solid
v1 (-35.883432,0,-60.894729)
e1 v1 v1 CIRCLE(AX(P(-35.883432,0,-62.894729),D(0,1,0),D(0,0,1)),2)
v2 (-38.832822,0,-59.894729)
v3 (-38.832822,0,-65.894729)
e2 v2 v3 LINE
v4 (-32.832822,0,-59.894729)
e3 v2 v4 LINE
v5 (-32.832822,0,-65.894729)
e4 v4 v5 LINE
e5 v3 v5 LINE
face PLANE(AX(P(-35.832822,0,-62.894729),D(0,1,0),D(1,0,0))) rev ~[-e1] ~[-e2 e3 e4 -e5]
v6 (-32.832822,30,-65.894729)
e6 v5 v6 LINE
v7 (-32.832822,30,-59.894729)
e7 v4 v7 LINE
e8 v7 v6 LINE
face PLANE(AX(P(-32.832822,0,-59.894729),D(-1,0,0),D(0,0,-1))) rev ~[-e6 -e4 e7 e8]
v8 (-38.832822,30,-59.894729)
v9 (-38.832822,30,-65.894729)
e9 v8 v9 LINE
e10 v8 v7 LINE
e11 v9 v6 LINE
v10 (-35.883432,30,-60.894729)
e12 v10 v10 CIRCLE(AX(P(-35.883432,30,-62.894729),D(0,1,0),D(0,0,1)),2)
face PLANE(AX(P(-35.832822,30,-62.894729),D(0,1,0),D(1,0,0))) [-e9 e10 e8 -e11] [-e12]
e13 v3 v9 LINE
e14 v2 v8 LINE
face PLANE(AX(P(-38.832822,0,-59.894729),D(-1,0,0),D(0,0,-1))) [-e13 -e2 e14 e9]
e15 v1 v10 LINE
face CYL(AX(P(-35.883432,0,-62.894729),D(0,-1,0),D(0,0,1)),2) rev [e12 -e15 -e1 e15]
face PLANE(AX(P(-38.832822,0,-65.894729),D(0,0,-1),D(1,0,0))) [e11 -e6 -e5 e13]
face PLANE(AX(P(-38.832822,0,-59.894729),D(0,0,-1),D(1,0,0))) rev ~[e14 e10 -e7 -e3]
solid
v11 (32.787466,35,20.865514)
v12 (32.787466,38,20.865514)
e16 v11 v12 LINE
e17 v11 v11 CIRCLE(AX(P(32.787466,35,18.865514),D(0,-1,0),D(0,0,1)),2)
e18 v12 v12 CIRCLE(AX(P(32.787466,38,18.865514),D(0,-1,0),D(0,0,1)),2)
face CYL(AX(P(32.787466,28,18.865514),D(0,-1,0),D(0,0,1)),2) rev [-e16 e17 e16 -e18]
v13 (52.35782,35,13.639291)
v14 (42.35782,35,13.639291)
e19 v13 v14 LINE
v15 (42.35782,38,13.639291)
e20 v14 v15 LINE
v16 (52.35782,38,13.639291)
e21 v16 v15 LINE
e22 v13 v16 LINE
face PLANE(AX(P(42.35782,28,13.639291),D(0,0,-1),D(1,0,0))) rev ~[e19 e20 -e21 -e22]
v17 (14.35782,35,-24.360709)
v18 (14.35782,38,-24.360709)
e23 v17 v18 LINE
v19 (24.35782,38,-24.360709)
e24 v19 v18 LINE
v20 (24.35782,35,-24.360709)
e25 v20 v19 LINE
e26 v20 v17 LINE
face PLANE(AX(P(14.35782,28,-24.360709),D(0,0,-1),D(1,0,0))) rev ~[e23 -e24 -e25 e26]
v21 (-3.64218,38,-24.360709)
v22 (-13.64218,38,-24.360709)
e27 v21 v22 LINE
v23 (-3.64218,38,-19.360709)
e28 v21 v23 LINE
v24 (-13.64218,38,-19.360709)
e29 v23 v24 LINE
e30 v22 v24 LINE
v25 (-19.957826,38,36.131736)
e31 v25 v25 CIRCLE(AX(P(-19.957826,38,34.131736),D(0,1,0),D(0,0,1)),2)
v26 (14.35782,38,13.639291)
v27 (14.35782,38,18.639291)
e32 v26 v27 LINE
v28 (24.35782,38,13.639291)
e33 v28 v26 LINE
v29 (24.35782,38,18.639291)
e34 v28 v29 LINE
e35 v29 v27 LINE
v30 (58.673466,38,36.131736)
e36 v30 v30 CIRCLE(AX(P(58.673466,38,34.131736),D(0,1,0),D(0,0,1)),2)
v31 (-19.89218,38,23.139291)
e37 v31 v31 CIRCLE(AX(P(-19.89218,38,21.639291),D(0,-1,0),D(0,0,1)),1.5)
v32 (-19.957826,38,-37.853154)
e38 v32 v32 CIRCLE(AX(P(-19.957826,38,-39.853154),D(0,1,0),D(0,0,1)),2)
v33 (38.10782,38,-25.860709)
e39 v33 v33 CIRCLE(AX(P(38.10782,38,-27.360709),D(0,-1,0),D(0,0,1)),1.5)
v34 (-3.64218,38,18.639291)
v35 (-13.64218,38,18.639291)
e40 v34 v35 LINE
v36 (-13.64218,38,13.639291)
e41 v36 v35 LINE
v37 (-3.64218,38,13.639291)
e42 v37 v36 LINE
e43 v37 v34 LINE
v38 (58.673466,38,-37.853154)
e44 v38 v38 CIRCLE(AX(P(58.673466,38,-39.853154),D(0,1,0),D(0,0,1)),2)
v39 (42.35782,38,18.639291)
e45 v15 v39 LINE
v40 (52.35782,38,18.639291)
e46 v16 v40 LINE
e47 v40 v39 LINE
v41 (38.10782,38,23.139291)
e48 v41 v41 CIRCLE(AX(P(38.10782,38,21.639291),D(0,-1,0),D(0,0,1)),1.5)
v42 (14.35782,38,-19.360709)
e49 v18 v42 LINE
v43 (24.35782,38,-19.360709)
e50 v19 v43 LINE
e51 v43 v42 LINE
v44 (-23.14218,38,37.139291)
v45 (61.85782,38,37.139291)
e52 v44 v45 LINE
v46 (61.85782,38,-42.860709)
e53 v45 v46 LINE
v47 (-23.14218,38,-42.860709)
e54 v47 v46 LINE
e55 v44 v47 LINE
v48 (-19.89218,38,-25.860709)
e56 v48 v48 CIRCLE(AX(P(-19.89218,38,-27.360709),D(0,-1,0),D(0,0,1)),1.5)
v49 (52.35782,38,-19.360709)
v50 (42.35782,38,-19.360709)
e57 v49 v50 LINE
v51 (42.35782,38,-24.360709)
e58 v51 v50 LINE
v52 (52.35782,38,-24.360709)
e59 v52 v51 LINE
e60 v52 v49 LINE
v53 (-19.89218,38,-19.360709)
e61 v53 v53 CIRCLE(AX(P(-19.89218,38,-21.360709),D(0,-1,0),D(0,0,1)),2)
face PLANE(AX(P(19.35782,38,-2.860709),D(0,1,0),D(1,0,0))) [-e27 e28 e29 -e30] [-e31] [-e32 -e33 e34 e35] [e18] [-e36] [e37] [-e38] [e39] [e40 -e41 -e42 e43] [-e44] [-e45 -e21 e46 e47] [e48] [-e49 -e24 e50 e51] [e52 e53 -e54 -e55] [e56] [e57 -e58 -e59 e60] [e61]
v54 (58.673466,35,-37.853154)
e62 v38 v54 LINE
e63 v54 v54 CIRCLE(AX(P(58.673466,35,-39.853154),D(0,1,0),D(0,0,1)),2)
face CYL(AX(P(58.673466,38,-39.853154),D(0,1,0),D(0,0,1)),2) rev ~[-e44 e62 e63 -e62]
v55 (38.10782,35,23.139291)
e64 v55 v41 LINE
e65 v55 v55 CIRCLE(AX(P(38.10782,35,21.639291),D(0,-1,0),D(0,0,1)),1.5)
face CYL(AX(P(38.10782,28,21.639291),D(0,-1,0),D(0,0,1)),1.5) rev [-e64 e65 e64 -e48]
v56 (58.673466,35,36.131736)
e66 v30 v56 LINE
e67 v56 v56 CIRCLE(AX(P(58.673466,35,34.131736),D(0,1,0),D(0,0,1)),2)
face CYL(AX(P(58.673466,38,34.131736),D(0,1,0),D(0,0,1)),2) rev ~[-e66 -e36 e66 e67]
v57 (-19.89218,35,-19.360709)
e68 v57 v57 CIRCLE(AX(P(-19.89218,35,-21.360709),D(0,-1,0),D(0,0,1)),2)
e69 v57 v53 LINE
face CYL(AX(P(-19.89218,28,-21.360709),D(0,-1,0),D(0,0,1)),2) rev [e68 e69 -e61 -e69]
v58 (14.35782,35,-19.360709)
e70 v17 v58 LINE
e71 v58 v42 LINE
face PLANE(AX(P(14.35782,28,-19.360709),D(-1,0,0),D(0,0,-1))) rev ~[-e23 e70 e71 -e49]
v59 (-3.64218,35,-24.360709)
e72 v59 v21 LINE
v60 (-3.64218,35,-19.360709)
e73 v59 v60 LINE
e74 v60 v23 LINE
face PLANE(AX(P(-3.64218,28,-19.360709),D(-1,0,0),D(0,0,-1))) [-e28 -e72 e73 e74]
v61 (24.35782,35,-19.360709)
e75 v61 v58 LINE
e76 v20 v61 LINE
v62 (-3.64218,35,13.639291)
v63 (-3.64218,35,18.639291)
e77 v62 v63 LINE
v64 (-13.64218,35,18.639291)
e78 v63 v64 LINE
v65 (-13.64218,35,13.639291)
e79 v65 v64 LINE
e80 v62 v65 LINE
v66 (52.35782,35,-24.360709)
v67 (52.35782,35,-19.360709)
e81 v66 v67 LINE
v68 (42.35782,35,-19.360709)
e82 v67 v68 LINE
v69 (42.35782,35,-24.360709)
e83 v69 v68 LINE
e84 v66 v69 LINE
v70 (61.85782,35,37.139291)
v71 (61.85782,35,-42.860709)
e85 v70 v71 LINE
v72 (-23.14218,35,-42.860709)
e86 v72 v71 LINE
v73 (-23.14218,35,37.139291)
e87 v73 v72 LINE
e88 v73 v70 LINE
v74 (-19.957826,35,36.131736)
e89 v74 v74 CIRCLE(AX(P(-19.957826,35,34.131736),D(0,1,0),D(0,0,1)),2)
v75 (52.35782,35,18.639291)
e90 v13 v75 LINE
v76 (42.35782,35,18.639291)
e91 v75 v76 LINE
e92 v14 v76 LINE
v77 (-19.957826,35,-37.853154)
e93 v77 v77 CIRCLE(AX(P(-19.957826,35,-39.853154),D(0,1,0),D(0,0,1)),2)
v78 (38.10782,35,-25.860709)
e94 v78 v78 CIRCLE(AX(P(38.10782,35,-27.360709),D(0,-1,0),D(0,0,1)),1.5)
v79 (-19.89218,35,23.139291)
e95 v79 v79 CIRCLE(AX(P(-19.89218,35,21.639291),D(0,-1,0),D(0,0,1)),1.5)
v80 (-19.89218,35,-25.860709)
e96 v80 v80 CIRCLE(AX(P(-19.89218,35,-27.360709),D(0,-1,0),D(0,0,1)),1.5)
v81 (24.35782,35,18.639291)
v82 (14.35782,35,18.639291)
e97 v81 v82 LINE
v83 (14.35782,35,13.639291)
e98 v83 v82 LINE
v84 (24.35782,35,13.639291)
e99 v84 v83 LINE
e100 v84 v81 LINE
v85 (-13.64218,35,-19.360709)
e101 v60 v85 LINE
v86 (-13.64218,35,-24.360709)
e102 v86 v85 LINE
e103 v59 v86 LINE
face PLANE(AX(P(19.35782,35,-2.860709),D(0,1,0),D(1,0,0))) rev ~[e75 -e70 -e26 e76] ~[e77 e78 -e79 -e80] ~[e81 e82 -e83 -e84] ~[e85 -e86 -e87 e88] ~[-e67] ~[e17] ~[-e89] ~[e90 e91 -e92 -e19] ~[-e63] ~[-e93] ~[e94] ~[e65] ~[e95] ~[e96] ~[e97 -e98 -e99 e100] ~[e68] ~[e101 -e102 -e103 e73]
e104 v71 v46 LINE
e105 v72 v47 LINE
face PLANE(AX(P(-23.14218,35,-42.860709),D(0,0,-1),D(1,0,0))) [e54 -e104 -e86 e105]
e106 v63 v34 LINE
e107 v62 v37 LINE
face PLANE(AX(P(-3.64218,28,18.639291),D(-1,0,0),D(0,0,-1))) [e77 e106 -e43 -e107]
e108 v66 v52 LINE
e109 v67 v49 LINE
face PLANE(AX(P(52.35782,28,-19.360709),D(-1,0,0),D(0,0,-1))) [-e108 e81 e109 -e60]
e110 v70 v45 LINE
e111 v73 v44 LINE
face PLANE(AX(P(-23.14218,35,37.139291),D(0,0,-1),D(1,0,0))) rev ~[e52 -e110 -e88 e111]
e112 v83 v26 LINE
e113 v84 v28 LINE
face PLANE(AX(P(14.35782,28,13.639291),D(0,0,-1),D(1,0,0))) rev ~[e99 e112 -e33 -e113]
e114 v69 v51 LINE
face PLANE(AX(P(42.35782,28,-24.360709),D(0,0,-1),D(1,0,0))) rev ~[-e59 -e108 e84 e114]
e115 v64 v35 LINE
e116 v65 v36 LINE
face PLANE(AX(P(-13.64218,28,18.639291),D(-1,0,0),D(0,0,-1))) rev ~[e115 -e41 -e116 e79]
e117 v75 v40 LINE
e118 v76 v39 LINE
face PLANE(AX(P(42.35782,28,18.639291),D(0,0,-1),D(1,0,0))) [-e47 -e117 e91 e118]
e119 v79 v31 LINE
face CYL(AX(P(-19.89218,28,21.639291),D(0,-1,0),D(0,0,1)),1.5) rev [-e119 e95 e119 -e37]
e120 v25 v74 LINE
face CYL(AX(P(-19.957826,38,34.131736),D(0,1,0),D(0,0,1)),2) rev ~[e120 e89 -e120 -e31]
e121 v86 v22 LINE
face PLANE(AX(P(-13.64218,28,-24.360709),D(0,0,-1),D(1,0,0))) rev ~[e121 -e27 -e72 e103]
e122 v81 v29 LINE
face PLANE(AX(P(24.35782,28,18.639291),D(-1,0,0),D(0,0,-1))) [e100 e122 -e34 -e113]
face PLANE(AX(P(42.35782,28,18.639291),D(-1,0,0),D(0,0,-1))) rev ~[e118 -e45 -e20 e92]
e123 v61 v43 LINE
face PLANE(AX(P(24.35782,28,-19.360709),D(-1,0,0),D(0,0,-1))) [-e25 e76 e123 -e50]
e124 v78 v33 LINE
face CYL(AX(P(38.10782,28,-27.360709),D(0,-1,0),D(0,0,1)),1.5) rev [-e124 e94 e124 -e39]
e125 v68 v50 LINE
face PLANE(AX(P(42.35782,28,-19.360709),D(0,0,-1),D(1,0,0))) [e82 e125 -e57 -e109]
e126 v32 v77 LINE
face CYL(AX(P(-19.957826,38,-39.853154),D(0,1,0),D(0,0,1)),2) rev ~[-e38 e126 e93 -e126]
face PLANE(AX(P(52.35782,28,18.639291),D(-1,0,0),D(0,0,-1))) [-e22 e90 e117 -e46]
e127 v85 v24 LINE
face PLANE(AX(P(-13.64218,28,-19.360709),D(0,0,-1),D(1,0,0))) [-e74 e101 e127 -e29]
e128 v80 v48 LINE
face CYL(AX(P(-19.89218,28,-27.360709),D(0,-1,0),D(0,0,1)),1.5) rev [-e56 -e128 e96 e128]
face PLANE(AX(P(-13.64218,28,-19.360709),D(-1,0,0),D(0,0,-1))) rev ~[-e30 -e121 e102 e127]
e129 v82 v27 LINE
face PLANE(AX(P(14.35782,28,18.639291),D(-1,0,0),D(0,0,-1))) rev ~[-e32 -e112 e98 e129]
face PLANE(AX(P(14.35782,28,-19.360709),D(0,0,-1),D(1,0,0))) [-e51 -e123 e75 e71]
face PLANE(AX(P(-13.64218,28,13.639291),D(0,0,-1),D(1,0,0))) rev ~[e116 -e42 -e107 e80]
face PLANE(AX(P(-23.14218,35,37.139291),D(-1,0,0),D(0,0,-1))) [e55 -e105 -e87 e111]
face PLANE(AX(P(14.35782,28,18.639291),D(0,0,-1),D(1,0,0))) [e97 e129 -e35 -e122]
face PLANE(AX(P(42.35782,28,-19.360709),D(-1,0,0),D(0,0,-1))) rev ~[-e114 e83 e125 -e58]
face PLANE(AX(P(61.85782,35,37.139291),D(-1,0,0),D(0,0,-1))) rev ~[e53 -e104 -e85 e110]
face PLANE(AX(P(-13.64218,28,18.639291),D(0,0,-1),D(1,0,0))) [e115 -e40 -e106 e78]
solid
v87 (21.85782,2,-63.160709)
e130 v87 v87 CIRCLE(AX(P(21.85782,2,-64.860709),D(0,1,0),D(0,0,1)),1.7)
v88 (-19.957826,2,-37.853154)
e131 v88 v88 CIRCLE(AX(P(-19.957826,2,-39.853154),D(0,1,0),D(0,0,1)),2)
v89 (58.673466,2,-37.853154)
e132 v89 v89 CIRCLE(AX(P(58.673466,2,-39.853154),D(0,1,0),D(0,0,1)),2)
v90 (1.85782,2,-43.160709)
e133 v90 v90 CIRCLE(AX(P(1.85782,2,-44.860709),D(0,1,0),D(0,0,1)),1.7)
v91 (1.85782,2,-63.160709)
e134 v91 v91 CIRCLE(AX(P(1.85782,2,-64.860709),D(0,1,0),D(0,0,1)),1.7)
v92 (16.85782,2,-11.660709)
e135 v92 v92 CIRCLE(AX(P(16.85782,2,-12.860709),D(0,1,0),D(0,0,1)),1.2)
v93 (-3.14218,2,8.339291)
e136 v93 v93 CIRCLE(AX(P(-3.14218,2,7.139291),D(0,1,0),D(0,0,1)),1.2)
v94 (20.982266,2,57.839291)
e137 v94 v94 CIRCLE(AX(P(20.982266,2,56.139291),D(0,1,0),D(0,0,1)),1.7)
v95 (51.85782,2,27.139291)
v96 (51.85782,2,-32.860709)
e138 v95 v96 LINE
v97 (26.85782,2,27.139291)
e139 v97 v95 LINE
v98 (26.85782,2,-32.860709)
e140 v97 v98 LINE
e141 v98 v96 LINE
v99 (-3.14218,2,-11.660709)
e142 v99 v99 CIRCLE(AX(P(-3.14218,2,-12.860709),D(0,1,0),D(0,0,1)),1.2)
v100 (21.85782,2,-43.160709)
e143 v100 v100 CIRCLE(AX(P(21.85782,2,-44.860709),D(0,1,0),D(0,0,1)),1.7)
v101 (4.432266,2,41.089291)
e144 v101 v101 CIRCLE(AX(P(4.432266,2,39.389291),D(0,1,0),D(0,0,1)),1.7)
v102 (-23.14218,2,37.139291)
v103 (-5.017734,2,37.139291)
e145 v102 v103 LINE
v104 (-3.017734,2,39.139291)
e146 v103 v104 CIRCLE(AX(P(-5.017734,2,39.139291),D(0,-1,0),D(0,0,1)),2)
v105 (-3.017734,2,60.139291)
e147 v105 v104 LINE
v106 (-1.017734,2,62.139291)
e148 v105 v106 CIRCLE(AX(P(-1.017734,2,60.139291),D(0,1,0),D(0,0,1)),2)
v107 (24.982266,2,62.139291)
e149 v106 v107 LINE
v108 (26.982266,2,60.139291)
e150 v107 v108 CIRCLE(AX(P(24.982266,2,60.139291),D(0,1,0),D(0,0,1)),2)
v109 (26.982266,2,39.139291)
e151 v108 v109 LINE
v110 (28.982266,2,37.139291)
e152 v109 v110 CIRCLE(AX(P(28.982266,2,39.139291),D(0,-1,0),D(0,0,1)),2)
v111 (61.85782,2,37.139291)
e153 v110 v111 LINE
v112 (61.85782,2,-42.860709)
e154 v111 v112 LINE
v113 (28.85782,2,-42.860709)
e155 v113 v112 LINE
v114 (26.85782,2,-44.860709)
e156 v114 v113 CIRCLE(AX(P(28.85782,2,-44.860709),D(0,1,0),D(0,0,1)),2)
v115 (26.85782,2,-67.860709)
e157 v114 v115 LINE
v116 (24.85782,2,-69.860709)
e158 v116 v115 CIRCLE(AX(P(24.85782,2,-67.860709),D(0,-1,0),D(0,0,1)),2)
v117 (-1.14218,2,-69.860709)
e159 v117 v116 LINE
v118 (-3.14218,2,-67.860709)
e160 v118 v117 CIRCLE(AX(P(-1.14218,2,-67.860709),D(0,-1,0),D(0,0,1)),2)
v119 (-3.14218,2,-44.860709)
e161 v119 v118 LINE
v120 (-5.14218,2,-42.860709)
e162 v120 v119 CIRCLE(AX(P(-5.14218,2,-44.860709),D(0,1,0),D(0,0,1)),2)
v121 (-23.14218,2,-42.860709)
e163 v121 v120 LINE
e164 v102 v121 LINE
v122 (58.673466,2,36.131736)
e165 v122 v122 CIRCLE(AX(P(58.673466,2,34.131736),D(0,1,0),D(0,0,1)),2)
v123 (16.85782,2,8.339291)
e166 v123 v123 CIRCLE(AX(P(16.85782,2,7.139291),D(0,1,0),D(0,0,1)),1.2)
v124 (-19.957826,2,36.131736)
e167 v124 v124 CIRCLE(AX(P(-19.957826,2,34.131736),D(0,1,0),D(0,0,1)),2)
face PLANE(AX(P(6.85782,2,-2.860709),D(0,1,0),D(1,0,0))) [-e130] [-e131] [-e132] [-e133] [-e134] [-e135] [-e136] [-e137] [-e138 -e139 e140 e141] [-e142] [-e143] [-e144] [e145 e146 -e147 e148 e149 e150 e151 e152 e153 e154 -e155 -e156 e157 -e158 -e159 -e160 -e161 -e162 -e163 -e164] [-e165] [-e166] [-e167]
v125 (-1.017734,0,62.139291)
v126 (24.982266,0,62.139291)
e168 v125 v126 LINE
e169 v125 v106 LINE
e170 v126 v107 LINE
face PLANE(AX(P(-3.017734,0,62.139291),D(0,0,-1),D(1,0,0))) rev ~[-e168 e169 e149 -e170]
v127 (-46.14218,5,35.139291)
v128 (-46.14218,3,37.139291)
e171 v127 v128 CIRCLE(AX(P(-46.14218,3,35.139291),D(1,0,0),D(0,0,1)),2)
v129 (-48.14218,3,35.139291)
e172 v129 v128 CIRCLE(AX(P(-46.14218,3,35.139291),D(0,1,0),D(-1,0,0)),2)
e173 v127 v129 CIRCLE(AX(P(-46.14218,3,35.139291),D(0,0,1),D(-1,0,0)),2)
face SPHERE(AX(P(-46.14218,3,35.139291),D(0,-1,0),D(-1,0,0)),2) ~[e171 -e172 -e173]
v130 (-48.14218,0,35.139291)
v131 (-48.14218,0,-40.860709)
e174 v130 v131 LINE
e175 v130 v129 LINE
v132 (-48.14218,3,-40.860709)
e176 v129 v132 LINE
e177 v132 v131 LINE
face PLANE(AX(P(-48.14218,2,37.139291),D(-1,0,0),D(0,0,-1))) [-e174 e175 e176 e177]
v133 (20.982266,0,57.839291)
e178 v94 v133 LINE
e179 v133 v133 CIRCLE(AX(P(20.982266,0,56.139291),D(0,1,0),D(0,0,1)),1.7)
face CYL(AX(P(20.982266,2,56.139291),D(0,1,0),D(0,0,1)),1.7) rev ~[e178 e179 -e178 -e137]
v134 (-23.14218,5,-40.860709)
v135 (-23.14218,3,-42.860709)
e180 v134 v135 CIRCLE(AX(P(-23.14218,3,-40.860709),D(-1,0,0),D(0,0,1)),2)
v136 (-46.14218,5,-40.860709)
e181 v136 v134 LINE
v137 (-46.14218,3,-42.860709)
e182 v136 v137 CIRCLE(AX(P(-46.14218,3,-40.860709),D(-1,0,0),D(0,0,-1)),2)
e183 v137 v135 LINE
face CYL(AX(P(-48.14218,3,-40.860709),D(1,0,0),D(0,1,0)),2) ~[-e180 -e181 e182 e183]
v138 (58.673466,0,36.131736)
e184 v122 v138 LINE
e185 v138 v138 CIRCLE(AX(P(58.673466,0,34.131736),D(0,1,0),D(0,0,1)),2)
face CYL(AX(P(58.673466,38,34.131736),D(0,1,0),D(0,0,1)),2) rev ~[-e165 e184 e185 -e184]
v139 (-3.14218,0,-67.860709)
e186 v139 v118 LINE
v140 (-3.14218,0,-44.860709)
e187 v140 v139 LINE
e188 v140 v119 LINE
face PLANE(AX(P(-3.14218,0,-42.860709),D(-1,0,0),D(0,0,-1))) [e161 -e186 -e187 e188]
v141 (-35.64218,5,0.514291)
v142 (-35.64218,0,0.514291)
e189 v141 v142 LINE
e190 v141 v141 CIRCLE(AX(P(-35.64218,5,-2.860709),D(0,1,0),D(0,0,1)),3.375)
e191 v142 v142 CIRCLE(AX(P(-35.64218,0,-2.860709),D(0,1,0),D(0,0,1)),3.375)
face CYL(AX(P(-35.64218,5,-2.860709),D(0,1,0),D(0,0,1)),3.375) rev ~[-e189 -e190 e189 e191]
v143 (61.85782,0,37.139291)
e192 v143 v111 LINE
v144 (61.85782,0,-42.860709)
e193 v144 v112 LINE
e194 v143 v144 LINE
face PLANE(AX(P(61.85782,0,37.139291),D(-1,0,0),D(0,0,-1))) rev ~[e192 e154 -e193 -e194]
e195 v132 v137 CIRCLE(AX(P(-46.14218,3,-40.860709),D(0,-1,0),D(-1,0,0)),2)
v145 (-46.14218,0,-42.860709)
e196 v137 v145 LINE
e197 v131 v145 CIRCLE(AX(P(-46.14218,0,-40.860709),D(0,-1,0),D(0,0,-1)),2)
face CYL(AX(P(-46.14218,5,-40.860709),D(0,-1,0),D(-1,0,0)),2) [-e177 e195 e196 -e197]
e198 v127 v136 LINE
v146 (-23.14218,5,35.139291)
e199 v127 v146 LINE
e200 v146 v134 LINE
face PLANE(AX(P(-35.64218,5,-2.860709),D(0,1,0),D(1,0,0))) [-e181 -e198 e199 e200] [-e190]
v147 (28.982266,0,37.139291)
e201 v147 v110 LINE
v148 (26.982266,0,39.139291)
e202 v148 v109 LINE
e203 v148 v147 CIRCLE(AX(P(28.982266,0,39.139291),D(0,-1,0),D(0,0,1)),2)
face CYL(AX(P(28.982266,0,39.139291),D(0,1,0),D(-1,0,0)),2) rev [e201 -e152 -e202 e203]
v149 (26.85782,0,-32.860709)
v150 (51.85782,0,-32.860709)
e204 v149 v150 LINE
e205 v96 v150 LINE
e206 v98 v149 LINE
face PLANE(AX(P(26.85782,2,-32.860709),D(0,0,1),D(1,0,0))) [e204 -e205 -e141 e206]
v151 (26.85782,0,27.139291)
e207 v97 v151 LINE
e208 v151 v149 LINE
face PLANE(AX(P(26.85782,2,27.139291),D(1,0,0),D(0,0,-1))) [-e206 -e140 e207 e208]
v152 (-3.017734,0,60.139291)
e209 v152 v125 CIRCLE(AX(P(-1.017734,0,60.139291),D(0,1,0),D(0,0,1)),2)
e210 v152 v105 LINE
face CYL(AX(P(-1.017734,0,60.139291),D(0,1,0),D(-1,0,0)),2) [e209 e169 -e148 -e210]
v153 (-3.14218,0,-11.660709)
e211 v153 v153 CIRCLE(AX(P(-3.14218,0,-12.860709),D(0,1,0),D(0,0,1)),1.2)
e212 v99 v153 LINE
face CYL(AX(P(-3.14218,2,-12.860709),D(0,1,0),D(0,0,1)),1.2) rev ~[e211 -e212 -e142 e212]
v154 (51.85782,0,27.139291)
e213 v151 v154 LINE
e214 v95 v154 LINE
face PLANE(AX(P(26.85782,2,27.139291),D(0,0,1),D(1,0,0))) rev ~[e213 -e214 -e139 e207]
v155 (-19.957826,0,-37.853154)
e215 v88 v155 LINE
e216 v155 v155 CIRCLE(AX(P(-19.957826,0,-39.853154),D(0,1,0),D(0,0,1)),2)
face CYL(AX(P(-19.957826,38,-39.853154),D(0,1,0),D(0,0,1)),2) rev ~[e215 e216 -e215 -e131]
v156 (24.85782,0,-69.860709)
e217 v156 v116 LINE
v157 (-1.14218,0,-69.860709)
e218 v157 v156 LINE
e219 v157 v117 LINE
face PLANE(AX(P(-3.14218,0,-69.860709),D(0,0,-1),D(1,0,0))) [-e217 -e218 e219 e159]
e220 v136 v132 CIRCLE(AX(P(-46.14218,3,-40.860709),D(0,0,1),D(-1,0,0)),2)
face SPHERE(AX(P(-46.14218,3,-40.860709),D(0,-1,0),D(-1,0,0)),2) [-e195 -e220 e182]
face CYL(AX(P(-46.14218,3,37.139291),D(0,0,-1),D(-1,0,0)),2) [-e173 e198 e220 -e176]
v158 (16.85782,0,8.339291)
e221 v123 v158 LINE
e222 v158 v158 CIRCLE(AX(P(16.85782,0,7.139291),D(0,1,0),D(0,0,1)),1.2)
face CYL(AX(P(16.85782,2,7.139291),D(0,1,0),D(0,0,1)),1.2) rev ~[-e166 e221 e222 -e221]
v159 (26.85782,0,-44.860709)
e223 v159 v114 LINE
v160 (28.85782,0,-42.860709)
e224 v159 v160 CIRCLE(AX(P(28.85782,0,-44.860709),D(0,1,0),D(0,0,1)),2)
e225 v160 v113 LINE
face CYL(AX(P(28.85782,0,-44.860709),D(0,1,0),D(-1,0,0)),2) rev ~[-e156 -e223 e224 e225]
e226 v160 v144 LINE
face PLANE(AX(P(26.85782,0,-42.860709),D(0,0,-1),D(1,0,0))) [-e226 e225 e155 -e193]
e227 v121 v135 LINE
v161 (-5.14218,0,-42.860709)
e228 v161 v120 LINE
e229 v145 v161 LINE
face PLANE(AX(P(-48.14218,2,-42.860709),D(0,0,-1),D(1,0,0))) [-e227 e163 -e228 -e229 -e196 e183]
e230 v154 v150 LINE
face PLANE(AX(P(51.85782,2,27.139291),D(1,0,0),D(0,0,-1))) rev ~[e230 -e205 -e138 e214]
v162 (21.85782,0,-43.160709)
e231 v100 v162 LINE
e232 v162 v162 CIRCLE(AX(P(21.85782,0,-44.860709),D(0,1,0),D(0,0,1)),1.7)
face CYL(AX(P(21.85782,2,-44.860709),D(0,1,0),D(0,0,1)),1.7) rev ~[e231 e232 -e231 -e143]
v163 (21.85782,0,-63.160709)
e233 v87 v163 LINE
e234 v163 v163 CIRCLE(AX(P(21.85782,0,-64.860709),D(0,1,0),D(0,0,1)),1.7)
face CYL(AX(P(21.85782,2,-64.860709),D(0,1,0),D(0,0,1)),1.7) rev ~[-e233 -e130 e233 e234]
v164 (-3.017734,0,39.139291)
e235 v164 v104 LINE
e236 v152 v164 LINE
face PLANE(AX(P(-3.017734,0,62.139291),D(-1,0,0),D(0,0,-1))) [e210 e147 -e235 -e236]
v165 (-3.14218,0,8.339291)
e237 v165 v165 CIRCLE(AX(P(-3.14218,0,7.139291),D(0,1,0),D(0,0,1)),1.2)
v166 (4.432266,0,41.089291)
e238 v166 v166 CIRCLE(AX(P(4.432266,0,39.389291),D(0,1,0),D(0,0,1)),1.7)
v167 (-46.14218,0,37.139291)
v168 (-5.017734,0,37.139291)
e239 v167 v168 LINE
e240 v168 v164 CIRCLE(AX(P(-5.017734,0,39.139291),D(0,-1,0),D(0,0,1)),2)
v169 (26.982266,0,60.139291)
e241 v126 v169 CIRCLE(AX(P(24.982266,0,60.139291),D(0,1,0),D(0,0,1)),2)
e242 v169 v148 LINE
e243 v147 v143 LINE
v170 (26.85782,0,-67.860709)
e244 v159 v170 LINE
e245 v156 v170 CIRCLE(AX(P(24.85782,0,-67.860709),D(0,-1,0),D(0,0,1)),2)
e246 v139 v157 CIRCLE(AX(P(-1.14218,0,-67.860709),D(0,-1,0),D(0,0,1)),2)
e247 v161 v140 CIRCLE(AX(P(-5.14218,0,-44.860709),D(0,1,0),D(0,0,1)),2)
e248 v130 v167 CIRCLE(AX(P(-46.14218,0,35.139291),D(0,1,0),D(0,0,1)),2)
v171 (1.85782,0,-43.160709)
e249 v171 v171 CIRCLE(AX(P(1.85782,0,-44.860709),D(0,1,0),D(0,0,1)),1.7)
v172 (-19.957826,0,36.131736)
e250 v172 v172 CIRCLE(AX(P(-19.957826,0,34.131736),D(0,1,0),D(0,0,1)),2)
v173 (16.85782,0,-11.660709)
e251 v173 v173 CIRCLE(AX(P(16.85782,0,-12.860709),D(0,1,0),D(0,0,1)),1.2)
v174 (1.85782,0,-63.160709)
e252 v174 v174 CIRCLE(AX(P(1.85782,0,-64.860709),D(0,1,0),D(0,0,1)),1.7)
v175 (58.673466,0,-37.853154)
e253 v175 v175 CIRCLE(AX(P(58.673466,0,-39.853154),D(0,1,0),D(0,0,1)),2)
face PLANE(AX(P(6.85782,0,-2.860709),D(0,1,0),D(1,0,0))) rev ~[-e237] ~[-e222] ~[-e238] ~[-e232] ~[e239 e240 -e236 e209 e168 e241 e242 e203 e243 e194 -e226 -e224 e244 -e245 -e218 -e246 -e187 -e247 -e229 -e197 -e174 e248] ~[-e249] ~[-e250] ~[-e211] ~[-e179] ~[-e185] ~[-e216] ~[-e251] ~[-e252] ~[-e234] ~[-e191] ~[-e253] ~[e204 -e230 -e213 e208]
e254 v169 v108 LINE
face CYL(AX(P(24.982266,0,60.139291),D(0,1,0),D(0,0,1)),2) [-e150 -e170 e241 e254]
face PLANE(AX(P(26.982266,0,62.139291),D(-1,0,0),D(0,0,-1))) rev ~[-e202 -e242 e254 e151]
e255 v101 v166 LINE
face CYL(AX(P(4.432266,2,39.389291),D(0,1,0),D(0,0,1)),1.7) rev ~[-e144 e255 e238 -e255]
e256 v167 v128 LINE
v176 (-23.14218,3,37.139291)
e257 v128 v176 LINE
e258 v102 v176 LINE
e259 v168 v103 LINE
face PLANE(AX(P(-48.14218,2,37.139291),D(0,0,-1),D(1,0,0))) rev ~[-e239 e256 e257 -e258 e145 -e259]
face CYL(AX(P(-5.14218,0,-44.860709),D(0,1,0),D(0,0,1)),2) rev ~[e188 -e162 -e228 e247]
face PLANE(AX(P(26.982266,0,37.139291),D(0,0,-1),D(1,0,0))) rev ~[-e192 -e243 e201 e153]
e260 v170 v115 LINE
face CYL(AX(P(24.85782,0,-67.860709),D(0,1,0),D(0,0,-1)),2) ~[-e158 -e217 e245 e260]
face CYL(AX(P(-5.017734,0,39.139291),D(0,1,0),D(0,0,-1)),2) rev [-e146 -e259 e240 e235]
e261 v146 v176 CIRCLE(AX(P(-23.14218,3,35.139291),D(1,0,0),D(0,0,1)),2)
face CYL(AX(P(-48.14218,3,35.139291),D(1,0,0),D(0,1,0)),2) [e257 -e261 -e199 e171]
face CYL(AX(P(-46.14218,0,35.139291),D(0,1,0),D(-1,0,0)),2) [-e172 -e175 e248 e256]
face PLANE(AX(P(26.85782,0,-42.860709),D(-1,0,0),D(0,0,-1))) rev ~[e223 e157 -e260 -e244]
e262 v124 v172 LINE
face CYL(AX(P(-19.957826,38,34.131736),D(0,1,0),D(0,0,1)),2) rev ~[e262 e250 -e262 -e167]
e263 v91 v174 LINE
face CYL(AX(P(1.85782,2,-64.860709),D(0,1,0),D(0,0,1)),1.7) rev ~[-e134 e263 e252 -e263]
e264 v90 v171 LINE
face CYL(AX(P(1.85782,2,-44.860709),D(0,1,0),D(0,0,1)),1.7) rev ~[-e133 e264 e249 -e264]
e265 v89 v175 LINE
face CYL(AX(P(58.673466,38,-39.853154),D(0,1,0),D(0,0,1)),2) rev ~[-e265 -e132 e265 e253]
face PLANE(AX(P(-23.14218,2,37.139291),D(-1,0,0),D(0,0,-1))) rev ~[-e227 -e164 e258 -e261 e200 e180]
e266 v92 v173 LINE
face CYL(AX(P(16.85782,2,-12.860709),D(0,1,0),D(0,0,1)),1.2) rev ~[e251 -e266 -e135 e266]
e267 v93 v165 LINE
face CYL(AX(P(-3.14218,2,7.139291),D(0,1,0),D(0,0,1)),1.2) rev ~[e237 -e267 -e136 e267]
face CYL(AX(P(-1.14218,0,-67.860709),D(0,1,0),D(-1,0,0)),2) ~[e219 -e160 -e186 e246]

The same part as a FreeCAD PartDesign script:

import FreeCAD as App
import Part
import Sketcher
from FreeCAD import Vector
Q = App.Units.Quantity


def edges_at(feature, points):
    """Names of the edges that pass closest to the given points."""
    edges = feature.Shape.Edges
    near = lambda p: min(range(len(edges)), key=lambda i: edges[i].distToShape(Part.Vertex(*p))[0])
    return sorted({f"Edge{near(p) + 1}" for p in points})

doc = App.newDocument("Part")
body = doc.addObject("PartDesign::Body", "Body")

# Sketch on XZ plane
sketch1 = doc.addObject("Sketcher::SketchObject", "Sketch")
body.addObject(sketch1)
sketch1.AttachmentSupport = (doc.XZ_Plane, [""])
sketch1.MapMode = "FlatFace"
sketch1.addGeometry([
    Part.LineSegment(Vector(-48.14218, -42.860709, 0), Vector(-48.14218, 37.139291, 0)),  # 0
    Part.LineSegment(Vector(-48.14218, 37.139291, 0), Vector(-3.017734, 37.139291, 0)),  # 1
    Part.LineSegment(Vector(-3.017734, 37.139291, 0), Vector(-3.017734, 62.139291, 0)),  # 2
    Part.LineSegment(Vector(-3.017734, 62.139291, 0), Vector(26.982266, 62.139291, 0)),  # 3
    Part.LineSegment(Vector(26.982266, 62.139291, 0), Vector(26.982266, 37.139291, 0)),  # 4
    Part.LineSegment(Vector(26.982266, 37.139291, 0), Vector(61.85782, 37.139291, 0)),  # 5
    Part.LineSegment(Vector(61.85782, 37.139291, 0), Vector(61.85782, -42.860709, 0)),  # 6
    Part.LineSegment(Vector(61.85782, -42.860709, 0), Vector(26.85782, -42.860709, 0)),  # 7
    Part.LineSegment(Vector(26.85782, -42.860709, 0), Vector(26.85782, -69.860709, 0)),  # 8
    Part.LineSegment(Vector(26.85782, -69.860709, 0), Vector(-3.14218, -69.860709, 0)),  # 9
    Part.LineSegment(Vector(-3.14218, -69.860709, 0), Vector(-3.14218, -42.860709, 0)),  # 10
    Part.LineSegment(Vector(-3.14218, -42.860709, 0), Vector(-48.14218, -42.860709, 0)),  # 11
], False)
sketch1.addConstraint([
    Sketcher.Constraint("Coincident", 0, 2, 1, 1),
    Sketcher.Constraint("Coincident", 1, 2, 2, 1),
    Sketcher.Constraint("Coincident", 2, 2, 3, 1),
    Sketcher.Constraint("Coincident", 3, 2, 4, 1),
    Sketcher.Constraint("Coincident", 4, 2, 5, 1),
    Sketcher.Constraint("Coincident", 5, 2, 6, 1),
    Sketcher.Constraint("Coincident", 6, 2, 7, 1),
    Sketcher.Constraint("Coincident", 7, 2, 8, 1),
    Sketcher.Constraint("Coincident", 8, 2, 9, 1),
    Sketcher.Constraint("Coincident", 9, 2, 10, 1),
    Sketcher.Constraint("Coincident", 10, 2, 11, 1),
    Sketcher.Constraint("Coincident", 11, 2, 0, 1),
    Sketcher.Constraint("Vertical", 0),
    Sketcher.Constraint("Horizontal", 1),
    Sketcher.Constraint("Vertical", 2),
    Sketcher.Constraint("Horizontal", 3),
    Sketcher.Constraint("Vertical", 4),
    Sketcher.Constraint("Horizontal", 5),
    Sketcher.Constraint("Vertical", 6),
    Sketcher.Constraint("Horizontal", 7),
    Sketcher.Constraint("Vertical", 8),
    Sketcher.Constraint("Horizontal", 9),
    Sketcher.Constraint("Vertical", 10),
    Sketcher.Constraint("Horizontal", 11),
    Sketcher.Constraint("Horizontal", 1, 2, 4, 2),
    Sketcher.Constraint("Horizontal", 7, 2, 10, 2),
    Sketcher.Constraint("Equal", 3, 9),
    Sketcher.Constraint("DistanceX", 3, 1, 3, 2, Q("30 mm")),
    Sketcher.Constraint("DistanceX", 7, 2, 7, 1, Q("35 mm")),
    Sketcher.Constraint("DistanceX", 11, 2, 11, 1, Q("45 mm")),
    Sketcher.Constraint("DistanceY", 0, 1, 0, 2, Q("80 mm")),
    Sketcher.Constraint("DistanceY", 2, 1, 2, 2, Q("25 mm")),
    Sketcher.Constraint("DistanceY", 8, 2, 8, 1, Q("27 mm")),
    Sketcher.Constraint("DistanceX", 1, 1, 1, 2, Q("45.124446 mm")),
    Sketcher.Constraint("DistanceX", 0, 2, -1, 1, Q("48.14218 mm")),
    Sketcher.Constraint("DistanceY", -1, 1, 0, 2, Q("37.139291 mm")),
])
pad1 = doc.addObject("PartDesign::Pad", "Pad")
body.addObject(pad1)
pad1.Profile = sketch1
pad1.Length = 2
pad1.Reversed = True

# Sketch on XZ plane
sketch2 = doc.addObject("Sketcher::SketchObject", "Sketch001")
body.addObject(sketch2)
sketch2.AttachmentSupport = (doc.XZ_Plane, [""])
sketch2.MapMode = "FlatFace"
sketch2.AttachmentOffset = App.Placement(Vector(0, 0, -2), App.Rotation())
sketch2.addGeometry([
    Part.LineSegment(Vector(-48.14218, -42.860709, 0), Vector(-48.14218, 37.139291, 0)),
    Part.LineSegment(Vector(-48.14218, 37.139291, 0), Vector(-23.14218, 37.139291, 0)),
    Part.LineSegment(Vector(-23.14218, 37.139291, 0), Vector(-23.14218, -42.860709, 0)),
    Part.LineSegment(Vector(-23.14218, -42.860709, 0), Vector(-48.14218, -42.860709, 0)),
], False)
sketch2.addConstraint([
    Sketcher.Constraint("Coincident", 0, 2, 1, 1),
    Sketcher.Constraint("Coincident", 1, 2, 2, 1),
    Sketcher.Constraint("Coincident", 2, 2, 3, 1),
    Sketcher.Constraint("Coincident", 3, 2, 0, 1),
    Sketcher.Constraint("Vertical", 0),
    Sketcher.Constraint("Horizontal", 1),
    Sketcher.Constraint("Vertical", 2),
    Sketcher.Constraint("Horizontal", 3),
    Sketcher.Constraint("DistanceX", 1, 1, 1, 2, Q("25 mm")),
    Sketcher.Constraint("DistanceY", 0, 1, 0, 2, Q("80 mm")),
    Sketcher.Constraint("DistanceX", 0, 2, -1, 1, Q("48.14218 mm")),
    Sketcher.Constraint("DistanceY", -1, 1, 0, 2, Q("37.139291 mm")),
])
pad2 = doc.addObject("PartDesign::Pad", "Pad001")
body.addObject(pad2)
pad2.Profile = sketch2
pad2.Length = 3
pad2.Reversed = True

# Sketch on XZ plane
sketch3 = doc.addObject("Sketcher::SketchObject", "Sketch002")
body.addObject(sketch3)
sketch3.AttachmentSupport = (doc.XZ_Plane, [""])
sketch3.MapMode = "FlatFace"
sketch3.AttachmentOffset = App.Placement(Vector(0, 0, -5), App.Rotation())
sketch3.addGeometry(Part.Circle(Vector(-35.64218, -2.860709, 0), Vector(0, 0, 1), 3.375), False)
sketch3.addConstraint([
    Sketcher.Constraint("Diameter", 0, Q("6.75 mm")),
    Sketcher.Constraint("DistanceX", 0, 3, -1, 1, Q("35.64218 mm")),
    Sketcher.Constraint("DistanceY", 0, 3, -1, 1, Q("2.860709 mm")),
])
pocket1 = doc.addObject("PartDesign::Pocket", "Pocket")
body.addObject(pocket1)
pocket1.Profile = sketch3
pocket1.Length = 6
pocket1.Reversed = True

# Sketch on XZ plane
sketch4 = doc.addObject("Sketcher::SketchObject", "Sketch003")
body.addObject(sketch4)
sketch4.AttachmentSupport = (doc.XZ_Plane, [""])
sketch4.MapMode = "FlatFace"
sketch4.AttachmentOffset = App.Placement(Vector(0, 0, -2), App.Rotation())
sketch4.addGeometry([
    Part.Circle(Vector(-3.14218, -12.860709, 0), Vector(0, 0, 1), 1.2),
    Part.Circle(Vector(16.85782, -12.860709, 0), Vector(0, 0, 1), 1.2),
    Part.Circle(Vector(16.85782, 7.139291, 0), Vector(0, 0, 1), 1.2),
    Part.Circle(Vector(-3.14218, 7.139291, 0), Vector(0, 0, 1), 1.2),
], False)
sketch4.addConstraint([
    Sketcher.Constraint("Equal", 0, 1),
    Sketcher.Constraint("Equal", 1, 2),
    Sketcher.Constraint("Equal", 2, 3),
    Sketcher.Constraint("Horizontal", 0, 3, 1, 3),
    Sketcher.Constraint("Horizontal", 2, 3, 3, 3),
    Sketcher.Constraint("Vertical", 1, 3, 2, 3),
    Sketcher.Constraint("Vertical", 0, 3, 3, 3),
    Sketcher.Constraint("Diameter", 0, Q("2.4 mm")),
    Sketcher.Constraint("DistanceX", 0, 3, 1, 3, Q("20 mm")),
    Sketcher.Constraint("DistanceY", 1, 3, 2, 3, Q("20 mm")),
    Sketcher.Constraint("DistanceX", 0, 3, -1, 1, Q("3.14218 mm")),
    Sketcher.Constraint("DistanceY", 0, 3, -1, 1, Q("12.860709 mm")),
])
pocket2 = doc.addObject("PartDesign::Pocket", "Pocket001")
body.addObject(pocket2)
pocket2.Profile = sketch4
pocket2.Length = 6
pocket2.Reversed = True

# Sketch on XZ plane
sketch5 = doc.addObject("Sketcher::SketchObject", "Sketch004")
body.addObject(sketch5)
sketch5.AttachmentSupport = (doc.XZ_Plane, [""])
sketch5.MapMode = "FlatFace"
sketch5.AttachmentOffset = App.Placement(Vector(0, 0, -2), App.Rotation())
sketch5.addGeometry([
    Part.Circle(Vector(1.85782, -64.860709, 0), Vector(0, 0, 1), 1.7),  # 0
    Part.Circle(Vector(21.85782, -64.860709, 0), Vector(0, 0, 1), 1.7),  # 1
    Part.Circle(Vector(21.85782, -44.860709, 0), Vector(0, 0, 1), 1.7),  # 2
    Part.Circle(Vector(1.85782, -44.860709, 0), Vector(0, 0, 1), 1.7),  # 3
    Part.Circle(Vector(20.982266, 56.139291, 0), Vector(0, 0, 1), 1.7),  # 4
    Part.Circle(Vector(4.432266, 39.389291, 0), Vector(0, 0, 1), 1.7),  # 5
], False)
sketch5.addConstraint([
    Sketcher.Constraint("Equal", 0, 1),
    Sketcher.Constraint("Equal", 1, 2),
    Sketcher.Constraint("Equal", 2, 3),
    Sketcher.Constraint("Equal", 3, 4),
    Sketcher.Constraint("Equal", 4, 5),
    Sketcher.Constraint("Horizontal", 0, 3, 1, 3),
    Sketcher.Constraint("Horizontal", 2, 3, 3, 3),
    Sketcher.Constraint("Vertical", 1, 3, 2, 3),
    Sketcher.Constraint("Vertical", 0, 3, 3, 3),
    Sketcher.Constraint("Diameter", 0, Q("3.4 mm")),
    Sketcher.Constraint("DistanceX", 0, 3, 1, 3, Q("20 mm")),
    Sketcher.Constraint("DistanceY", 1, 3, 2, 3, Q("20 mm")),
    Sketcher.Constraint("DistanceY", 2, 3, 4, 3, Q("101 mm")),
    Sketcher.Constraint("DistanceX", 5, 3, 4, 3, Q("16.55 mm")),
    Sketcher.Constraint("DistanceY", 5, 3, 4, 3, Q("16.75 mm")),
    Sketcher.Constraint("DistanceX", -1, 1, 0, 3, Q("1.85782 mm")),
    Sketcher.Constraint("DistanceY", 0, 3, -1, 1, Q("64.860709 mm")),
    Sketcher.Constraint("DistanceX", -1, 1, 4, 3, Q("20.982266 mm")),
])
pocket3 = doc.addObject("PartDesign::Pocket", "Pocket002")
body.addObject(pocket3)
pocket3.Profile = sketch5
pocket3.Length = 6
pocket3.Reversed = True

# Sketch on XZ plane
sketch6 = doc.addObject("Sketcher::SketchObject", "Sketch005")
body.addObject(sketch6)
sketch6.AttachmentSupport = (doc.XZ_Plane, [""])
sketch6.MapMode = "FlatFace"
sketch6.AttachmentOffset = App.Placement(Vector(0, 0, -2), App.Rotation())
sketch6.addGeometry([
    Part.LineSegment(Vector(26.85782, -32.860709, 0), Vector(26.85782, 27.139291, 0)),
    Part.LineSegment(Vector(26.85782, 27.139291, 0), Vector(51.85782, 27.139291, 0)),
    Part.LineSegment(Vector(51.85782, 27.139291, 0), Vector(51.85782, -32.860709, 0)),
    Part.LineSegment(Vector(51.85782, -32.860709, 0), Vector(26.85782, -32.860709, 0)),
], False)
sketch6.addConstraint([
    Sketcher.Constraint("Coincident", 0, 2, 1, 1),
    Sketcher.Constraint("Coincident", 1, 2, 2, 1),
    Sketcher.Constraint("Coincident", 2, 2, 3, 1),
    Sketcher.Constraint("Coincident", 3, 2, 0, 1),
    Sketcher.Constraint("Vertical", 0),
    Sketcher.Constraint("Horizontal", 1),
    Sketcher.Constraint("Vertical", 2),
    Sketcher.Constraint("Horizontal", 3),
    Sketcher.Constraint("DistanceX", 1, 1, 1, 2, Q("25 mm")),
    Sketcher.Constraint("DistanceY", 0, 1, 0, 2, Q("60 mm")),
    Sketcher.Constraint("DistanceX", -1, 1, 0, 2, Q("26.85782 mm")),
    Sketcher.Constraint("DistanceY", -1, 1, 0, 2, Q("27.139291 mm")),
])
pocket4 = doc.addObject("PartDesign::Pocket", "Pocket003")
body.addObject(pocket4)
pocket4.Profile = sketch6
pocket4.Length = 4
pocket4.Reversed = True
body2 = doc.addObject("PartDesign::Body", "Body001")

# Sketch on XZ plane
sketch7 = doc.addObject("Sketcher::SketchObject", "Sketch006")
body2.addObject(sketch7)
sketch7.AttachmentSupport = (doc.getObject("XZ_Plane001"), [""])
sketch7.MapMode = "FlatFace"
sketch7.AttachmentOffset = App.Placement(Vector(0, 0, -35), App.Rotation())
sketch7.addGeometry([
    Part.LineSegment(Vector(-23.14218, -42.860709, 0), Vector(-23.14218, 37.139291, 0)),
    Part.LineSegment(Vector(-23.14218, 37.139291, 0), Vector(61.85782, 37.139291, 0)),
    Part.LineSegment(Vector(61.85782, 37.139291, 0), Vector(61.85782, -42.860709, 0)),
    Part.LineSegment(Vector(61.85782, -42.860709, 0), Vector(-23.14218, -42.860709, 0)),
], False)
sketch7.addConstraint([
    Sketcher.Constraint("Coincident", 0, 2, 1, 1),
    Sketcher.Constraint("Coincident", 1, 2, 2, 1),
    Sketcher.Constraint("Coincident", 2, 2, 3, 1),
    Sketcher.Constraint("Coincident", 3, 2, 0, 1),
    Sketcher.Constraint("Vertical", 0),
    Sketcher.Constraint("Horizontal", 1),
    Sketcher.Constraint("Vertical", 2),
    Sketcher.Constraint("Horizontal", 3),
    Sketcher.Constraint("DistanceX", 1, 1, 1, 2, Q("85 mm")),
    Sketcher.Constraint("DistanceY", 0, 1, 0, 2, Q("80 mm")),
    Sketcher.Constraint("DistanceX", 0, 2, -1, 1, Q("23.14218 mm")),
    Sketcher.Constraint("DistanceY", -1, 1, 0, 2, Q("37.139291 mm")),
])
pad3 = doc.addObject("PartDesign::Pad", "Pad002")
body2.addObject(pad3)
pad3.Profile = sketch7
pad3.Length = 3
pad3.Reversed = True

# Sketch on XZ plane
sketch8 = doc.addObject("Sketcher::SketchObject", "Sketch007")
body2.addObject(sketch8)
sketch8.AttachmentSupport = (doc.getObject("XZ_Plane001"), [""])
sketch8.MapMode = "FlatFace"
sketch8.AttachmentOffset = App.Placement(Vector(0, 0, -38), App.Rotation())
sketch8.addGeometry([
    Part.Circle(Vector(-19.89218, -27.360709, 0), Vector(0, 0, 1), 1.5),  # 0
    Part.Circle(Vector(38.10782, -27.360709, 0), Vector(0, 0, 1), 1.5),  # 1
    Part.Circle(Vector(38.10782, 21.639291, 0), Vector(0, 0, 1), 1.5),  # 2
    Part.Circle(Vector(-19.89218, 21.639291, 0), Vector(0, 0, 1), 1.5),  # 3
    Part.Circle(Vector(-19.89218, -21.360709, 0), Vector(0, 0, 1), 2),  # 4
    Part.Circle(Vector(32.787466, 18.865514, 0), Vector(0, 0, 1), 2),  # 5
], False)
sketch8.addConstraint([
    Sketcher.Constraint("Equal", 0, 1),
    Sketcher.Constraint("Equal", 1, 2),
    Sketcher.Constraint("Equal", 2, 3),
    Sketcher.Constraint("Equal", 4, 5),
    Sketcher.Constraint("Horizontal", 0, 3, 1, 3),
    Sketcher.Constraint("Horizontal", 2, 3, 3, 3),
    Sketcher.Constraint("Vertical", 1, 3, 2, 3),
    Sketcher.Constraint("Vertical", 0, 3, 3, 3),
    Sketcher.Constraint("Vertical", 3, 3, 4, 3),
    Sketcher.Constraint("Diameter", 0, Q("3 mm")),
    Sketcher.Constraint("Diameter", 4, Q("4 mm")),
    Sketcher.Constraint("DistanceX", 0, 3, 1, 3, Q("58 mm")),
    Sketcher.Constraint("DistanceY", 1, 3, 2, 3, Q("49 mm")),
    Sketcher.Constraint("DistanceY", 0, 3, 4, 3, Q("6 mm")),
    Sketcher.Constraint("DistanceX", 0, 3, -1, 1, Q("19.89218 mm")),
    Sketcher.Constraint("DistanceY", 0, 3, -1, 1, Q("27.360709 mm")),
    Sketcher.Constraint("DistanceX", -1, 1, 5, 3, Q("32.787466 mm")),
    Sketcher.Constraint("DistanceY", -1, 1, 5, 3, Q("18.865514 mm")),
])
pocket5 = doc.addObject("PartDesign::Pocket", "Pocket004")
body2.addObject(pocket5)
pocket5.Profile = sketch8
pocket5.Type = "ThroughAll"
pocket5.Midplane = True

# Sketch on XZ plane
sketch9 = doc.addObject("Sketcher::SketchObject", "Sketch008")
body2.addObject(sketch9)
sketch9.AttachmentSupport = (doc.getObject("XZ_Plane001"), [""])
sketch9.MapMode = "FlatFace"
sketch9.AttachmentOffset = App.Placement(Vector(0, 0, -38), App.Rotation())
sketch9.addGeometry([
    Part.LineSegment(Vector(14.35782, -24.360709, 0), Vector(14.35782, -19.360709, 0)),  # 0
    Part.LineSegment(Vector(14.35782, -19.360709, 0), Vector(24.35782, -19.360709, 0)),  # 1
    Part.LineSegment(Vector(24.35782, -19.360709, 0), Vector(24.35782, -24.360709, 0)),  # 2
    Part.LineSegment(Vector(24.35782, -24.360709, 0), Vector(14.35782, -24.360709, 0)),  # 3
    Part.LineSegment(Vector(-13.64218, -24.360709, 0), Vector(-13.64218, -19.360709, 0)),  # 4
    Part.LineSegment(Vector(-13.64218, -19.360709, 0), Vector(-3.64218, -19.360709, 0)),  # 5
    Part.LineSegment(Vector(-3.64218, -19.360709, 0), Vector(-3.64218, -24.360709, 0)),  # 6
    Part.LineSegment(Vector(-3.64218, -24.360709, 0), Vector(-13.64218, -24.360709, 0)),  # 7
    Part.LineSegment(Vector(42.35782, 13.639291, 0), Vector(42.35782, 18.639291, 0)),  # 8
    Part.LineSegment(Vector(42.35782, 18.639291, 0), Vector(52.35782, 18.639291, 0)),  # 9
    Part.LineSegment(Vector(52.35782, 18.639291, 0), Vector(52.35782, 13.639291, 0)),  # 10
    Part.LineSegment(Vector(52.35782, 13.639291, 0), Vector(42.35782, 13.639291, 0)),  # 11
    Part.LineSegment(Vector(42.35782, -24.360709, 0), Vector(42.35782, -19.360709, 0)),  # 12
    Part.LineSegment(Vector(42.35782, -19.360709, 0), Vector(52.35782, -19.360709, 0)),  # 13
    Part.LineSegment(Vector(52.35782, -19.360709, 0), Vector(52.35782, -24.360709, 0)),  # 14
    Part.LineSegment(Vector(52.35782, -24.360709, 0), Vector(42.35782, -24.360709, 0)),  # 15
    Part.LineSegment(Vector(14.35782, 13.639291, 0), Vector(14.35782, 18.639291, 0)),  # 16
    Part.LineSegment(Vector(14.35782, 18.639291, 0), Vector(24.35782, 18.639291, 0)),  # 17
    Part.LineSegment(Vector(24.35782, 18.639291, 0), Vector(24.35782, 13.639291, 0)),  # 18
    Part.LineSegment(Vector(24.35782, 13.639291, 0), Vector(14.35782, 13.639291, 0)),  # 19
    Part.LineSegment(Vector(-13.64218, 13.639291, 0), Vector(-13.64218, 18.639291, 0)),  # 20
    Part.LineSegment(Vector(-13.64218, 18.639291, 0), Vector(-3.64218, 18.639291, 0)),  # 21
    Part.LineSegment(Vector(-3.64218, 18.639291, 0), Vector(-3.64218, 13.639291, 0)),  # 22
    Part.LineSegment(Vector(-3.64218, 13.639291, 0), Vector(-13.64218, 13.639291, 0)),  # 23
], False)
sketch9.addConstraint([
    Sketcher.Constraint("Coincident", 0, 2, 1, 1),
    Sketcher.Constraint("Coincident", 1, 2, 2, 1),
    Sketcher.Constraint("Coincident", 2, 2, 3, 1),
    Sketcher.Constraint("Coincident", 3, 2, 0, 1),
    Sketcher.Constraint("Coincident", 4, 2, 5, 1),
    Sketcher.Constraint("Coincident", 5, 2, 6, 1),
    Sketcher.Constraint("Coincident", 6, 2, 7, 1),
    Sketcher.Constraint("Coincident", 7, 2, 4, 1),
    Sketcher.Constraint("Coincident", 8, 2, 9, 1),
    Sketcher.Constraint("Coincident", 9, 2, 10, 1),
    Sketcher.Constraint("Coincident", 10, 2, 11, 1),
    Sketcher.Constraint("Coincident", 11, 2, 8, 1),
    Sketcher.Constraint("Coincident", 12, 2, 13, 1),
    Sketcher.Constraint("Coincident", 13, 2, 14, 1),
    Sketcher.Constraint("Coincident", 14, 2, 15, 1),
    Sketcher.Constraint("Coincident", 15, 2, 12, 1),
    Sketcher.Constraint("Coincident", 16, 2, 17, 1),
    Sketcher.Constraint("Coincident", 17, 2, 18, 1),
    Sketcher.Constraint("Coincident", 18, 2, 19, 1),
    Sketcher.Constraint("Coincident", 19, 2, 16, 1),
    Sketcher.Constraint("Coincident", 20, 2, 21, 1),
    Sketcher.Constraint("Coincident", 21, 2, 22, 1),
    Sketcher.Constraint("Coincident", 22, 2, 23, 1),
    Sketcher.Constraint("Coincident", 23, 2, 20, 1),
    Sketcher.Constraint("Vertical", 0),
    Sketcher.Constraint("Horizontal", 1),
    Sketcher.Constraint("Vertical", 2),
    Sketcher.Constraint("Horizontal", 3),
    Sketcher.Constraint("Vertical", 4),
    Sketcher.Constraint("Horizontal", 5),
    Sketcher.Constraint("Vertical", 6),
    Sketcher.Constraint("Horizontal", 7),
    Sketcher.Constraint("Vertical", 8),
    Sketcher.Constraint("Horizontal", 9),
    Sketcher.Constraint("Vertical", 10),
    Sketcher.Constraint("Horizontal", 11),
    Sketcher.Constraint("Vertical", 12),
    Sketcher.Constraint("Horizontal", 13),
    Sketcher.Constraint("Vertical", 14),
    Sketcher.Constraint("Horizontal", 15),
    Sketcher.Constraint("Vertical", 16),
    Sketcher.Constraint("Horizontal", 17),
    Sketcher.Constraint("Vertical", 18),
    Sketcher.Constraint("Horizontal", 19),
    Sketcher.Constraint("Vertical", 20),
    Sketcher.Constraint("Horizontal", 21),
    Sketcher.Constraint("Vertical", 22),
    Sketcher.Constraint("Horizontal", 23),
    Sketcher.Constraint("Horizontal", 1, 2, 4, 2),
    Sketcher.Constraint("Horizontal", 3, 2, 6, 2),
    Sketcher.Constraint("Horizontal", 5, 2, 12, 2),
    Sketcher.Constraint("Horizontal", 7, 2, 14, 2),
    Sketcher.Constraint("Horizontal", 9, 2, 16, 2),
    Sketcher.Constraint("Horizontal", 11, 2, 18, 2),
    Sketcher.Constraint("Horizontal", 17, 2, 20, 2),
    Sketcher.Constraint("Horizontal", 19, 2, 22, 2),
    Sketcher.Constraint("Vertical", 11, 2, 12, 2),
    Sketcher.Constraint("Vertical", 10, 2, 13, 2),
    Sketcher.Constraint("Vertical", 3, 2, 16, 2),
    Sketcher.Constraint("Vertical", 2, 2, 17, 2),
    Sketcher.Constraint("Vertical", 7, 2, 20, 2),
    Sketcher.Constraint("Vertical", 6, 2, 21, 2),
    Sketcher.Constraint("Equal", 3, 5),
    Sketcher.Constraint("Equal", 7, 9),
    Sketcher.Constraint("Equal", 6, 8),
    Sketcher.Constraint("DistanceX", 1, 1, 1, 2, Q("10 mm")),
    Sketcher.Constraint("DistanceY", 0, 1, 0, 2, Q("5 mm")),
    Sketcher.Constraint("DistanceX", 4, 2, 0, 2, Q("28 mm")),
    Sketcher.Constraint("DistanceX", 1, 2, 8, 2, Q("18 mm")),
    Sketcher.Constraint("DistanceY", 1, 2, 8, 2, Q("38 mm")),
    Sketcher.Constraint("DistanceX", -1, 1, 0, 2, Q("14.35782 mm")),
    Sketcher.Constraint("DistanceY", 0, 2, -1, 1, Q("19.360709 mm")),
])
pocket6 = doc.addObject("PartDesign::Pocket", "Pocket005")
body2.addObject(pocket6)
pocket6.Profile = sketch9
pocket6.Type = "ThroughAll"
pocket6.Midplane = True
body3 = doc.addObject("PartDesign::Body", "Body002")
body3.AllowCompound = True

# Sketch on XZ plane
sketch10 = doc.addObject("Sketcher::SketchObject", "Sketch009")
body3.addObject(sketch10)
sketch10.AttachmentSupport = (doc.getObject("XZ_Plane002"), [""])
sketch10.MapMode = "FlatFace"
sketch10.AttachmentOffset = App.Placement(Vector(0, 0, -38), App.Rotation())
sketch10.addGeometry([
    Part.Circle(Vector(-19.957826, -39.853154, 0), Vector(0, 0, 1), 2),
    Part.Circle(Vector(-19.957826, 34.131736, 0), Vector(0, 0, 1), 2),
    Part.Circle(Vector(58.673466, 34.131736, 0), Vector(0, 0, 1), 2),
    Part.Circle(Vector(58.673466, -39.853154, 0), Vector(0, 0, 1), 2),
], False)
sketch10.addConstraint([
    Sketcher.Constraint("Equal", 0, 1),
    Sketcher.Constraint("Equal", 1, 2),
    Sketcher.Constraint("Equal", 2, 3),
    Sketcher.Constraint("Horizontal", 1, 3, 2, 3),
    Sketcher.Constraint("Horizontal", 0, 3, 3, 3),
    Sketcher.Constraint("Vertical", 0, 3, 1, 3),
    Sketcher.Constraint("Vertical", 2, 3, 3, 3),
    Sketcher.Constraint("Diameter", 0, Q("4 mm")),
    Sketcher.Constraint("DistanceY", 0, 3, 1, 3, Q("73.98489 mm")),
    Sketcher.Constraint("DistanceX", 0, 3, -1, 1, Q("19.957826 mm")),
    Sketcher.Constraint("DistanceY", 0, 3, -1, 1, Q("39.853154 mm")),
    Sketcher.Constraint("DistanceX", -1, 1, 2, 3, Q("58.673466 mm")),
])
pad4 = doc.addObject("PartDesign::Pad", "Pad003")
body3.addObject(pad4)
pad4.Profile = sketch10
pad4.Length = 101.751717
doc.recompute()

body4 = doc.addObject("PartDesign::Body", "Body003")
body4.BaseFeature = body3
boolean = doc.addObject("PartDesign::Boolean", "Boolean")
body.addObject(boolean)
boolean.Type = "Cut"
boolean.addObjects([body4])
doc.recompute()

fillet = doc.addObject("PartDesign::Fillet", "Fillet")
body.addObject(fillet)
fillet.Base = (boolean, edges_at(boolean, [
    (26.858, 1, -42.861),
    (-3.142, 1, -42.861),
    (-48.142, 2.5, -42.861),
    (-48.142, 2.5, 37.139),
    (-3.142, 1, -69.861),
    (26.858, 1, -69.861),
    (-48.142, 5, -2.861),
    (-35.642, 5, 37.139),
    (-35.642, 5, -42.861),
    (-3.018, 1, 62.139),
    (-3.018, 1, 37.139),
    (26.982, 1, 37.139),
    (26.982, 1, 62.139),
]))
fillet.Radius = 2
doc.recompute()

boolean2 = doc.addObject("PartDesign::Boolean", "Boolean001")
body2.addObject(boolean2)
boolean2.Type = "Cut"
boolean2.addObjects([body3])
body5 = doc.addObject("PartDesign::Body", "Body004")

# Sketch on XZ plane
sketch11 = doc.addObject("Sketcher::SketchObject", "Sketch010")
body5.addObject(sketch11)
sketch11.AttachmentSupport = (doc.getObject("XZ_Plane004"), [""])
sketch11.MapMode = "FlatFace"
sketch11.addGeometry([
    Part.LineSegment(Vector(-38.832822, -65.894729, 0), Vector(-38.832822, -59.894729, 0)),  # 0
    Part.LineSegment(Vector(-38.832822, -59.894729, 0), Vector(-32.832822, -59.894729, 0)),  # 1
    Part.LineSegment(Vector(-32.832822, -59.894729, 0), Vector(-32.832822, -65.894729, 0)),  # 2
    Part.LineSegment(Vector(-32.832822, -65.894729, 0), Vector(-38.832822, -65.894729, 0)),  # 3
    Part.Circle(Vector(-35.883432, -62.894729, 0), Vector(0, 0, 1), 2),  # 4
], False)
sketch11.addConstraint([
    Sketcher.Constraint("Coincident", 0, 2, 1, 1),
    Sketcher.Constraint("Coincident", 1, 2, 2, 1),
    Sketcher.Constraint("Coincident", 2, 2, 3, 1),
    Sketcher.Constraint("Coincident", 3, 2, 0, 1),
    Sketcher.Constraint("Vertical", 0),
    Sketcher.Constraint("Horizontal", 1),
    Sketcher.Constraint("Vertical", 2),
    Sketcher.Constraint("Horizontal", 3),
    Sketcher.Constraint("Equal", 3, 0),
    Sketcher.Constraint("Diameter", 4, Q("4 mm")),
    Sketcher.Constraint("DistanceX", 1, 1, 1, 2, Q("6 mm")),
    Sketcher.Constraint("DistanceY", 4, 3, 0, 2, Q("3 mm")),
    Sketcher.Constraint("DistanceY", 4, 3, -1, 1, Q("62.894729 mm")),
    Sketcher.Constraint("DistanceX", 0, 2, 4, 3, Q("2.94939 mm")),
    Sketcher.Constraint("DistanceX", 4, 3, -1, 1, Q("35.883432 mm")),
])
pad5 = doc.addObject("PartDesign::Pad", "Pad004")
body5.addObject(pad5)
pad5.Profile = sketch11
pad5.Length = 30
pad5.Reversed = True

doc.recompute()
